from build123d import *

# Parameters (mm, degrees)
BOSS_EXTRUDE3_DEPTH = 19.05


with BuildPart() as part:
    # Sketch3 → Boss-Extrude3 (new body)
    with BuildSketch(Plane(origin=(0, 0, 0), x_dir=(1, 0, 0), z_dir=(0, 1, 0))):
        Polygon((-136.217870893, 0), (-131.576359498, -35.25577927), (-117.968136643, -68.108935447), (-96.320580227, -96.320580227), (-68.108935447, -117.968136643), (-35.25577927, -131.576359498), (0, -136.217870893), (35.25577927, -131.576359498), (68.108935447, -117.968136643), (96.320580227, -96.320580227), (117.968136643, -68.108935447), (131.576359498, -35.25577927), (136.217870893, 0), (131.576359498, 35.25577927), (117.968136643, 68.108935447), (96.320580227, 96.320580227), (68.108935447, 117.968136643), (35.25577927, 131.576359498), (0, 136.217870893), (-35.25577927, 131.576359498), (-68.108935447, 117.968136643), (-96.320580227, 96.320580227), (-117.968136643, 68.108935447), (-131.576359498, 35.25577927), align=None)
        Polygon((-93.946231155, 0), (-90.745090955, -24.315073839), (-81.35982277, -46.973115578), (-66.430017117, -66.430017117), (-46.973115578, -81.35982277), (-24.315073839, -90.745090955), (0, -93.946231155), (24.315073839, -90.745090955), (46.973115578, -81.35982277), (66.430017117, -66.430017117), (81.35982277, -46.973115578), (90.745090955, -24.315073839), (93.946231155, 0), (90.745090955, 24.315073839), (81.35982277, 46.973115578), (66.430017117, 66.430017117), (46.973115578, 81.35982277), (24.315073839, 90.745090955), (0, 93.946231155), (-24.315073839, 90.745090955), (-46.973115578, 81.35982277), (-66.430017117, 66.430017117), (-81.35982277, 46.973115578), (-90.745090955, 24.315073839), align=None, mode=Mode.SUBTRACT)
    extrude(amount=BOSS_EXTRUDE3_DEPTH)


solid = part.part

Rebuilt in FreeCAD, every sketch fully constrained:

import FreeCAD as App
import Part
import Sketcher

V = App.Vector
Q = App.Units.Quantity

doc = App.newDocument("Part")
params = doc.addObject("Spreadsheet::Sheet", "Params")
for row, (alias, value) in enumerate([
    ("sketch1_length", "1.4 in"),
    ("pad1_length", "0.75 in"),
], start=1):
    params.set(f"A{row}", alias)
    params.set(f"B{row}", "=" + value)
    params.setAlias(f"B{row}", alias)

body = doc.addObject("PartDesign::Body", "Body")

# Sketch on XZ plane
sketch1 = body.newObject("Sketcher::SketchObject", "Sketch")
sketch1.AttachmentSupport = (doc.getObject("XZ_Plane"), [""])
sketch1.MapMode = "FlatFace"
sketch1.addGeometry([
    Part.LineSegment(V(-136, 0, 0), V(-132, 35, 0)),  # 0
    Part.LineSegment(V(-132, 35, 0), V(-118, 68, 0)),  # 1
    Part.LineSegment(V(-118, 68, 0), V(-96, 96, 0)),  # 2
    Part.LineSegment(V(-96, 96, 0), V(-68, 118, 0)),  # 3
    Part.LineSegment(V(-68, 118, 0), V(-35, 132, 0)),  # 4
    Part.LineSegment(V(-35, 132, 0), V(0, 136, 0)),  # 5
    Part.LineSegment(V(0, 136, 0), V(35, 132, 0)),  # 6
    Part.LineSegment(V(35, 132, 0), V(68, 118, 0)),  # 7
    Part.LineSegment(V(68, 118, 0), V(96, 96, 0)),  # 8
    Part.LineSegment(V(96, 96, 0), V(118, 68, 0)),  # 9
    Part.LineSegment(V(118, 68, 0), V(132, 35, 0)),  # 10
    Part.LineSegment(V(132, 35, 0), V(136, 0, 0)),  # 11
    Part.LineSegment(V(136, 0, 0), V(132, -35, 0)),  # 12
    Part.LineSegment(V(132, -35, 0), V(118, -68, 0)),  # 13
    Part.LineSegment(V(118, -68, 0), V(96, -96, 0)),  # 14
    Part.LineSegment(V(96, -96, 0), V(68, -118, 0)),  # 15
    Part.LineSegment(V(68, -118, 0), V(35, -132, 0)),  # 16
    Part.LineSegment(V(35, -132, 0), V(0, -136, 0)),  # 17
    Part.LineSegment(V(0, -136, 0), V(-35, -132, 0)),  # 18
    Part.LineSegment(V(-35, -132, 0), V(-68, -118, 0)),  # 19
    Part.LineSegment(V(-68, -118, 0), V(-96, -96, 0)),  # 20
    Part.LineSegment(V(-96, -96, 0), V(-118, -68, 0)),  # 21
    Part.LineSegment(V(-118, -68, 0), V(-132, -35, 0)),  # 22
    Part.LineSegment(V(-132, -35, 0), V(-136, 0, 0)),  # 23
    Part.LineSegment(V(-91, 24, 0), V(-94, 0, 0)),  # 24
    Part.LineSegment(V(-94, 0, 0), V(-91, -24, 0)),  # 25
    Part.LineSegment(V(-91, -24, 0), V(-81, -47, 0)),  # 26
    Part.LineSegment(V(-81, -47, 0), V(-66, -66, 0)),  # 27
    Part.LineSegment(V(-66, -66, 0), V(-47, -81, 0)),  # 28
    Part.LineSegment(V(-47, -81, 0), V(-24, -91, 0)),  # 29
    Part.LineSegment(V(-24, -91, 0), V(0, -94, 0)),  # 30
    Part.LineSegment(V(0, -94, 0), V(24, -91, 0)),  # 31
    Part.LineSegment(V(24, -91, 0), V(47, -81, 0)),  # 32
    Part.LineSegment(V(47, -81, 0), V(66, -66, 0)),  # 33
    Part.LineSegment(V(66, -66, 0), V(81, -47, 0)),  # 34
    Part.LineSegment(V(81, -47, 0), V(91, -24, 0)),  # 35
    Part.LineSegment(V(91, -24, 0), V(94, 0, 0)),  # 36
    Part.LineSegment(V(94, 0, 0), V(91, 24, 0)),  # 37
    Part.LineSegment(V(91, 24, 0), V(81, 47, 0)),  # 38
    Part.LineSegment(V(81, 47, 0), V(66, 66, 0)),  # 39
    Part.LineSegment(V(66, 66, 0), V(47, 81, 0)),  # 40
    Part.LineSegment(V(47, 81, 0), V(24, 91, 0)),  # 41
    Part.LineSegment(V(24, 91, 0), V(0, 94, 0)),  # 42
    Part.LineSegment(V(0, 94, 0), V(-24, 91, 0)),  # 43
    Part.LineSegment(V(-24, 91, 0), V(-47, 81, 0)),  # 44
    Part.LineSegment(V(-47, 81, 0), V(-66, 66, 0)),  # 45
    Part.LineSegment(V(-66, 66, 0), V(-81, 47, 0)),  # 46
    Part.LineSegment(V(-81, 47, 0), V(-91, 24, 0)),  # 47
], False)
sketch1.addConstraint([
    Sketcher.Constraint("Coincident", 0, 2, 1, 1),
    Sketcher.Constraint("Coincident", 1, 2, 2, 1),
    Sketcher.Constraint("Coincident", 2, 2, 3, 1),
    Sketcher.Constraint("Coincident", 3, 2, 4, 1),
    Sketcher.Constraint("Coincident", 4, 2, 5, 1),
    Sketcher.Constraint("Coincident", 5, 2, 6, 1),
    Sketcher.Constraint("Coincident", 6, 2, 7, 1),
    Sketcher.Constraint("Coincident", 7, 2, 8, 1),
    Sketcher.Constraint("Coincident", 8, 2, 9, 1),
    Sketcher.Constraint("Coincident", 9, 2, 10, 1),
    Sketcher.Constraint("Coincident", 10, 2, 11, 1),
    Sketcher.Constraint("Coincident", 11, 2, 12, 1),
    Sketcher.Constraint("Coincident", 12, 2, 13, 1),
    Sketcher.Constraint("Coincident", 13, 2, 14, 1),
    Sketcher.Constraint("Coincident", 14, 2, 15, 1),
    Sketcher.Constraint("Coincident", 15, 2, 16, 1),
    Sketcher.Constraint("Coincident", 16, 2, 17, 1),
    Sketcher.Constraint("Coincident", 17, 2, 18, 1),
    Sketcher.Constraint("Coincident", 18, 2, 19, 1),
    Sketcher.Constraint("Coincident", 19, 2, 20, 1),
    Sketcher.Constraint("Coincident", 20, 2, 21, 1),
    Sketcher.Constraint("Coincident", 21, 2, 22, 1),
    Sketcher.Constraint("Coincident", 22, 2, 23, 1),
    Sketcher.Constraint("Coincident", 23, 2, 0, 1),
    Sketcher.Constraint("Coincident", 24, 2, 25, 1),
    Sketcher.Constraint("Coincident", 25, 2, 26, 1),
    Sketcher.Constraint("Coincident", 26, 2, 27, 1),
    Sketcher.Constraint("Coincident", 27, 2, 28, 1),
    Sketcher.Constraint("Coincident", 28, 2, 29, 1),
    Sketcher.Constraint("Coincident", 29, 2, 30, 1),
    Sketcher.Constraint("Coincident", 30, 2, 31, 1),
    Sketcher.Constraint("Coincident", 31, 2, 32, 1),
    Sketcher.Constraint("Coincident", 32, 2, 33, 1),
    Sketcher.Constraint("Coincident", 33, 2, 34, 1),
    Sketcher.Constraint("Coincident", 34, 2, 35, 1),
    Sketcher.Constraint("Coincident", 35, 2, 36, 1),
    Sketcher.Constraint("Coincident", 36, 2, 37, 1),
    Sketcher.Constraint("Coincident", 37, 2, 38, 1),
    Sketcher.Constraint("Coincident", 38, 2, 39, 1),
    Sketcher.Constraint("Coincident", 39, 2, 40, 1),
    Sketcher.Constraint("Coincident", 40, 2, 41, 1),
    Sketcher.Constraint("Coincident", 41, 2, 42, 1),
    Sketcher.Constraint("Coincident", 42, 2, 43, 1),
    Sketcher.Constraint("Coincident", 43, 2, 44, 1),
    Sketcher.Constraint("Coincident", 44, 2, 45, 1),
    Sketcher.Constraint("Coincident", 45, 2, 46, 1),
    Sketcher.Constraint("Coincident", 46, 2, 47, 1),
    Sketcher.Constraint("Coincident", 47, 2, 24, 1),
    Sketcher.Constraint("Symmetric", 0, 2, 12, 2, -1, 1),
    Sketcher.Constraint("Symmetric", 1, 2, 13, 2, -1, 1),
    Sketcher.Constraint("Symmetric", 2, 2, 14, 2, -1, 1),
    Sketcher.Constraint("Symmetric", 3, 2, 15, 2, -1, 1),
    Sketcher.Constraint("Symmetric", 4, 2, 16, 2, -1, 1),
    Sketcher.Constraint("Symmetric", 5, 2, 17, 2, -1, 1),
    Sketcher.Constraint("Symmetric", 6, 2, 18, 2, -1, 1),
    Sketcher.Constraint("Symmetric", 7, 2, 19, 2, -1, 1),
    Sketcher.Constraint("Symmetric", 8, 2, 20, 2, -1, 1),
    Sketcher.Constraint("Symmetric", 9, 2, 21, 2, -1, 1),
    Sketcher.Constraint("Symmetric", 10, 2, 22, 2, -1, 1),
    Sketcher.Constraint("Symmetric", 11, 2, 23, 2, -1, 1),
    Sketcher.Constraint("Symmetric", 24, 2, 36, 2, -1, 1),
    Sketcher.Constraint("Symmetric", 25, 2, 37, 2, -1, 1),
    Sketcher.Constraint("Symmetric", 26, 2, 38, 2, -1, 1),
    Sketcher.Constraint("Symmetric", 27, 2, 39, 2, -1, 1),
    Sketcher.Constraint("Symmetric", 28, 2, 40, 2, -1, 1),
    Sketcher.Constraint("Symmetric", 29, 2, 41, 2, -1, 1),
    Sketcher.Constraint("Symmetric", 30, 2, 42, 2, -1, 1),
    Sketcher.Constraint("Symmetric", 31, 2, 43, 2, -1, 1),
    Sketcher.Constraint("Symmetric", 32, 2, 44, 2, -1, 1),
    Sketcher.Constraint("Symmetric", 33, 2, 45, 2, -1, 1),
    Sketcher.Constraint("Symmetric", 34, 2, 46, 2, -1, 1),
    Sketcher.Constraint("Symmetric", 35, 2, 47, 2, -1, 1),
    Sketcher.Constraint("Symmetric", 4, 2, 6, 2, -2),
    Sketcher.Constraint("Symmetric", 3, 2, 7, 2, -2),
    Sketcher.Constraint("Symmetric", 2, 2, 8, 2, -2),
    Sketcher.Constraint("Symmetric", 1, 2, 9, 2, -2),
    Sketcher.Constraint("Symmetric", 0, 2, 10, 2, -2),
    Sketcher.Constraint("Symmetric", 29, 2, 31, 2, -2),
    Sketcher.Constraint("Symmetric", 28, 2, 32, 2, -2),
    Sketcher.Constraint("Symmetric", 27, 2, 33, 2, -2),
    Sketcher.Constraint("Symmetric", 26, 2, 34, 2, -2),
    Sketcher.Constraint("Symmetric", 25, 2, 35, 2, -2),
    Sketcher.Constraint("PointOnObject", 5, 2, -2),
    Sketcher.Constraint("PointOnObject", 11, 2, -1),
    Sketcher.Constraint("PointOnObject", 24, 2, -1),
    Sketcher.Constraint("PointOnObject", 30, 2, -2),
    Sketcher.Constraint("Perpendicular", 0, 6),
    Sketcher.Constraint("Perpendicular", 1, 7),
    Sketcher.Constraint("Perpendicular", 2, 8),
    Sketcher.Constraint("Perpendicular", 18, 24),
    Sketcher.Constraint("Parallel", 22, 26),
    Sketcher.Constraint("Parallel", 21, 27),
    Sketcher.Constraint("Parallel", 20, 28),
    Sketcher.Constraint("Parallel", 19, 29),
    Sketcher.Constraint("Perpendicular", 24, 30),
    Sketcher.Constraint("Equal", 0, 1),
    Sketcher.Constraint("Equal", 1, 2),
    Sketcher.Constraint("Equal", 2, 3),
    Sketcher.Constraint("Equal", 3, 4),
    Sketcher.Constraint("Equal", 4, 5),
    Sketcher.Constraint("Equal", 25, 26),
    Sketcher.Constraint("Equal", 26, 27),
    Sketcher.Constraint("Equal", 27, 28),
    Sketcher.Constraint("Equal", 28, 29),
    Sketcher.Constraint("Equal", 29, 30),
    Sketcher.Constraint("Distance", 0, Q("1.4 in")),
    Sketcher.Constraint("Angle", 0, Q("82.5 deg")),
    Sketcher.Constraint("Angle", 1, Q("67.5 deg")),
    Sketcher.Constraint("Angle", 2, Q("52.5 deg")),
    Sketcher.Constraint("DistanceY", 27, 2, 26, 2, Q("19.456902 mm")),
])
sketch1.setExpression("Constraints[105]", "Params.sketch1_length")
pad1 = body.newObject("PartDesign::Pad", "Pad")
pad1.Profile = sketch1
pad1.setExpression("Length", "Params.pad1_length")
pad1.Reversed = True

doc.recompute()
